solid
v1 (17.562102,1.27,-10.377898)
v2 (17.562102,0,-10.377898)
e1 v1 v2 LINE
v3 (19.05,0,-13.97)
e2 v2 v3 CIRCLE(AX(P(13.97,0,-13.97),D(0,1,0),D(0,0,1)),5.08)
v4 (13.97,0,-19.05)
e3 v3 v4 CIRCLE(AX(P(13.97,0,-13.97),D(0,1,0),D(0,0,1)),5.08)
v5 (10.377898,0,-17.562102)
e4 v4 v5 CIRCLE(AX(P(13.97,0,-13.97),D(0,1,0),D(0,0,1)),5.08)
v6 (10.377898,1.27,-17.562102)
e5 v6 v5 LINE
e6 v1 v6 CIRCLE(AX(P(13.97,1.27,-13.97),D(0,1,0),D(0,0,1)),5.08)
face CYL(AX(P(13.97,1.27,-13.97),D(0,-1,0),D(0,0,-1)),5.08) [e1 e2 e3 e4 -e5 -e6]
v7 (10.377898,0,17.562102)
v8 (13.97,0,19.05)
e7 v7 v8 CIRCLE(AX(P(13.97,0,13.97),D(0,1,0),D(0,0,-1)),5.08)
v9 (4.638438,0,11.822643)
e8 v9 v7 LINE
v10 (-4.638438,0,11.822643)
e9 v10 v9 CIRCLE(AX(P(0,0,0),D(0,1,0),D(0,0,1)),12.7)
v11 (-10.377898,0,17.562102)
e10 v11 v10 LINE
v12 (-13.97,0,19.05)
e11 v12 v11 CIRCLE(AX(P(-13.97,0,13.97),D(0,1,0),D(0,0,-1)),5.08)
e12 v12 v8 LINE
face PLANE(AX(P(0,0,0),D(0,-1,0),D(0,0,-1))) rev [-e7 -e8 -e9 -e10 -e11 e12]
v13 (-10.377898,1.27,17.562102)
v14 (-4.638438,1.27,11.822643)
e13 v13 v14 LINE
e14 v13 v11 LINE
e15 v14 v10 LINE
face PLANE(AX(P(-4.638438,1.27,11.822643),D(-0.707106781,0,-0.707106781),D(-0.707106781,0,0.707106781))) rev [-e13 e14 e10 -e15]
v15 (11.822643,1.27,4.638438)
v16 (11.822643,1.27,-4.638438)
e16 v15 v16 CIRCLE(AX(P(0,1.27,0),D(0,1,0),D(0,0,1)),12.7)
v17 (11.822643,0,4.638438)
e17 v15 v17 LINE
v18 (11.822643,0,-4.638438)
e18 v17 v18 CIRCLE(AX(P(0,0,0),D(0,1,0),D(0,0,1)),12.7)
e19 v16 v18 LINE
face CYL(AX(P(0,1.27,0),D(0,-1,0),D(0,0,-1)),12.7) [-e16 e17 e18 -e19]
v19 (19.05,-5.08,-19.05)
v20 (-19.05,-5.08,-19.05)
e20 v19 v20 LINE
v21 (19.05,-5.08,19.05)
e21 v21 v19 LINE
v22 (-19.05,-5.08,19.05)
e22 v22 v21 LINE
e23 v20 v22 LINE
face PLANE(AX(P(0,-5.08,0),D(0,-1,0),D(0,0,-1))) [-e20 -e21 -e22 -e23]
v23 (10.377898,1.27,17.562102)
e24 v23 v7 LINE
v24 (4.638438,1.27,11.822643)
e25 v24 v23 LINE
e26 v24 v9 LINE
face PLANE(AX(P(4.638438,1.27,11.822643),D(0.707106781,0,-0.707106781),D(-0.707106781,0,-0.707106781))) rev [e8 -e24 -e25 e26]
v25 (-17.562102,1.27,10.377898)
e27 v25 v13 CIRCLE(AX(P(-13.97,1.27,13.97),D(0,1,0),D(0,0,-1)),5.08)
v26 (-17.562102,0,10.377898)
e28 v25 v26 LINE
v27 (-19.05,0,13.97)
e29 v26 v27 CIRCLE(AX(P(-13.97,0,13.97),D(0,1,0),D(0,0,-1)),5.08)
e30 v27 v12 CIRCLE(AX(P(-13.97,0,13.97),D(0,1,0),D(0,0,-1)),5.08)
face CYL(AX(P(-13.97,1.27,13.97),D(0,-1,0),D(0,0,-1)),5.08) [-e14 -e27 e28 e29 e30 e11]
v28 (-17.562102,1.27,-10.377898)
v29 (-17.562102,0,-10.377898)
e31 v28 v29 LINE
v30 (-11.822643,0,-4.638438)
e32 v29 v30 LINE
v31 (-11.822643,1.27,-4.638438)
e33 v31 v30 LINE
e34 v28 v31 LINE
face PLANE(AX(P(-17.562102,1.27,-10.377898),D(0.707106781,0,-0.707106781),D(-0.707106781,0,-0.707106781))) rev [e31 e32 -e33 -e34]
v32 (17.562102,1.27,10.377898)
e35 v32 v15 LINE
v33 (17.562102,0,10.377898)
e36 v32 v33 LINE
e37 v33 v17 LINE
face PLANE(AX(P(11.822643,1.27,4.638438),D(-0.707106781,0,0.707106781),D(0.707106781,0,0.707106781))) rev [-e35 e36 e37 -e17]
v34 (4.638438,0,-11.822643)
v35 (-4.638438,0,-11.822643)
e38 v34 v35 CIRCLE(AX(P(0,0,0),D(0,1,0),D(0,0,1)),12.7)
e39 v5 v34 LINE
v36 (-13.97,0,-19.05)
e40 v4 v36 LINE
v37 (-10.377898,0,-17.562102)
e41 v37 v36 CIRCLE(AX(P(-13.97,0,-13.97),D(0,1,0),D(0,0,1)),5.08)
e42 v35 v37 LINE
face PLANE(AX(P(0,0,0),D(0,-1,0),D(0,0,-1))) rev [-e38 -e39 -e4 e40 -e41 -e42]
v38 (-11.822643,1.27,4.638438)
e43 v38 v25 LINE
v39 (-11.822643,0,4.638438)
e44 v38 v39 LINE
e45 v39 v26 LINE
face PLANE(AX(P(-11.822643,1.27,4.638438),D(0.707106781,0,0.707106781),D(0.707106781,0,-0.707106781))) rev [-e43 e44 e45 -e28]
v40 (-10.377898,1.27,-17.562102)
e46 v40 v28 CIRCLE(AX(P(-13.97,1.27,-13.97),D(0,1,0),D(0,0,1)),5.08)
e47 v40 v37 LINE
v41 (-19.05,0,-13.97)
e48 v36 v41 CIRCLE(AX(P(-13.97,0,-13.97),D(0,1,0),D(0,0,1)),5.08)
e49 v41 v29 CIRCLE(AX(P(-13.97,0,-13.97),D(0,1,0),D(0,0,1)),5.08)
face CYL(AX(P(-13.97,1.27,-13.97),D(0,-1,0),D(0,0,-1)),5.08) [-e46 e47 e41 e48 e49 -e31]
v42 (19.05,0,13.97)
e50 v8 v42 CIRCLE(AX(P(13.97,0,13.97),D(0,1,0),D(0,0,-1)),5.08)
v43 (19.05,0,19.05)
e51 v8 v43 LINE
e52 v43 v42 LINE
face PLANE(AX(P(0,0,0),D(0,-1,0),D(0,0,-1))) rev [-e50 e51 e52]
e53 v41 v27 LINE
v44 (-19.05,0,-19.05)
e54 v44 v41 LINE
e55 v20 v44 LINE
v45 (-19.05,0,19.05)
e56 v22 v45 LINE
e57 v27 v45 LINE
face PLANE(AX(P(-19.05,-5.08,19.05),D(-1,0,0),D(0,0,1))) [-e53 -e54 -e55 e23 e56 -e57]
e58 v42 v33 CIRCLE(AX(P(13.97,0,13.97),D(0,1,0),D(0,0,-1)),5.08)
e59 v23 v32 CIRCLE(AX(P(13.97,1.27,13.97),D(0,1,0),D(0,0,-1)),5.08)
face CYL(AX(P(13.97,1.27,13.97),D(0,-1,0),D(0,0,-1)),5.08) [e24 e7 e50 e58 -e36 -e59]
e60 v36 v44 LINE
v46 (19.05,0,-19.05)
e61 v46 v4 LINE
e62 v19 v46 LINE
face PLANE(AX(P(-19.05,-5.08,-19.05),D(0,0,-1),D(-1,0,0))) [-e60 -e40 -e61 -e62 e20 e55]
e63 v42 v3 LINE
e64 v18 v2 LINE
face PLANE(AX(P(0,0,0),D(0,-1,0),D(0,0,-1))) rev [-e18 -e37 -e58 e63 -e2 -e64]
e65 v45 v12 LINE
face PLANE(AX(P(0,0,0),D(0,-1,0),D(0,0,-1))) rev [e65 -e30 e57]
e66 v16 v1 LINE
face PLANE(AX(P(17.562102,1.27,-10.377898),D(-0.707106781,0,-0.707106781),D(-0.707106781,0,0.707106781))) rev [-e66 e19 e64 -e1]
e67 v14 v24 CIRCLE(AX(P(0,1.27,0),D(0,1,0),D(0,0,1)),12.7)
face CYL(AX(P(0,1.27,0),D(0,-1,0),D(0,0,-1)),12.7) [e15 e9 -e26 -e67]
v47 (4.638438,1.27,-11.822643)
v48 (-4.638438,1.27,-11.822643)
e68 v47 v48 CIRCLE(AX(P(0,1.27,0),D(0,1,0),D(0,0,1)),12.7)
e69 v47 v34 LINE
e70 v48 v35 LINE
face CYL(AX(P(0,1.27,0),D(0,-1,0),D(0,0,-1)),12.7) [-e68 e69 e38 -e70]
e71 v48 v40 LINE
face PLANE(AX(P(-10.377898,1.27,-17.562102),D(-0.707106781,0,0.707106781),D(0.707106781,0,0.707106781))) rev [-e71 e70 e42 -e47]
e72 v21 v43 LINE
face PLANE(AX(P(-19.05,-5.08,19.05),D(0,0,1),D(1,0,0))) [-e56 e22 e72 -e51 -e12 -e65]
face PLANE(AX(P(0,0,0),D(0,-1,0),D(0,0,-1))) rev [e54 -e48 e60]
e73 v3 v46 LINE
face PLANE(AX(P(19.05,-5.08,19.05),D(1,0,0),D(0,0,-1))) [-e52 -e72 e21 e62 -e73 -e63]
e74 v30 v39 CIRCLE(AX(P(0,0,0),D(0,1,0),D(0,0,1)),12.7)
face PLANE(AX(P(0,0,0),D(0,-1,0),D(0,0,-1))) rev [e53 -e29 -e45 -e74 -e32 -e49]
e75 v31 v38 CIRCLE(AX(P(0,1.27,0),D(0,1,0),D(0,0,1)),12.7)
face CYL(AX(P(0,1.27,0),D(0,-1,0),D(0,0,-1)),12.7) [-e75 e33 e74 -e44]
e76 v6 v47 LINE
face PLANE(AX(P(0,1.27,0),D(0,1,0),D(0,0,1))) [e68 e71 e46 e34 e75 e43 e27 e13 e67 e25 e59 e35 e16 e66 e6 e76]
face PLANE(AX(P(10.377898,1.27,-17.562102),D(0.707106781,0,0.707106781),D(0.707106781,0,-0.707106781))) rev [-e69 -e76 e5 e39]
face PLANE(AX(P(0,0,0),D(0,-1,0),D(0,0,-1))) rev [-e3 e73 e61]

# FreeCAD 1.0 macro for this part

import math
import FreeCAD as App
import Part
import Sketcher
from FreeCAD import Vector
Q = App.Units.Quantity

doc = App.newDocument("Part")
body = doc.addObject("PartDesign::Body", "Body")

sketch1 = doc.addObject("Sketcher::SketchObject", "Sketch")
body.addObject(sketch1)
sketch1.AttachmentSupport = (doc.XZ_Plane, [""])
sketch1.MapMode = "FlatFace"
sketch1.addGeometry([
    Part.LineSegment(Vector(-19.05, -19.05, 0), Vector(-19.05, 19.05, 0)),
    Part.LineSegment(Vector(-19.05, 19.05, 0), Vector(19.05, 19.05, 0)),
    Part.LineSegment(Vector(19.05, 19.05, 0), Vector(19.05, -19.05, 0)),
    Part.LineSegment(Vector(19.05, -19.05, 0), Vector(-19.05, -19.05, 0)),
], False)
sketch1.addConstraint([
    Sketcher.Constraint("Coincident", 0, 2, 1, 1),
    Sketcher.Constraint("Coincident", 1, 2, 2, 1),
    Sketcher.Constraint("Coincident", 2, 2, 3, 1),
    Sketcher.Constraint("Coincident", 3, 2, 0, 1),
    Sketcher.Constraint("Vertical", 0),
    Sketcher.Constraint("Horizontal", 1),
    Sketcher.Constraint("Vertical", 2),
    Sketcher.Constraint("Horizontal", 3),
    Sketcher.Constraint("Symmetric", 0, 2, 2, 2, -1, 1),
    Sketcher.Constraint("Equal", 3, 0),
    Sketcher.Constraint("DistanceX", 1, 1, 1, 2, Q("1.5 in")),
])
pad1 = doc.addObject("PartDesign::Pad", "Pad")
body.addObject(pad1)
pad1.Profile = sketch1
pad1.Length = Q("0.2 in")

sketch2 = doc.addObject("Sketcher::SketchObject", "Sketch001")
body.addObject(sketch2)
sketch2.AttachmentSupport = (doc.XZ_Plane, [""])
sketch2.MapMode = "FlatFace"
sketch2.addGeometry([
    Part.LineSegment(Vector(-17.562102, -10.377898, 0), Vector(-11.822643, -4.638438, 0)),
    Part.ArcOfCircle(Part.Circle(Vector(0, 0, 0), Vector(0, 0, 1), 12.7), math.radians(158.578178), math.radians(201.421822)),
    Part.LineSegment(Vector(-11.822643, 4.638438, 0), Vector(-17.562102, 10.377898, 0)),
    Part.ArcOfCircle(Part.Circle(Vector(-13.97, 13.97, 0), Vector(0, 0, 1), 5.08), math.radians(45), math.radians(225)),
    Part.LineSegment(Vector(-10.377898, 17.562102, 0), Vector(-4.638438, 11.822643, 0)),
    Part.ArcOfCircle(Part.Circle(Vector(0, 0, 0), Vector(0, 0, 1), 12.7), math.radians(68.578178), math.radians(111.421822)),
    Part.LineSegment(Vector(4.638438, 11.822643, 0), Vector(10.377898, 17.562102, 0)),
    Part.ArcOfCircle(Part.Circle(Vector(13.97, 13.97, 0), Vector(0, 0, 1), 5.08), math.radians(-45), math.radians(135)),
    Part.LineSegment(Vector(17.562102, 10.377898, 0), Vector(11.822643, 4.638438, 0)),
    Part.ArcOfCircle(Part.Circle(Vector(0, 0, 0), Vector(0, 0, 1), 12.7), math.radians(-21.421822), math.radians(21.421822)),
    Part.LineSegment(Vector(11.822643, -4.638438, 0), Vector(17.562102, -10.377898, 0)),
    Part.ArcOfCircle(Part.Circle(Vector(13.97, -13.97, 0), Vector(0, 0, 1), 5.08), math.radians(-135), math.radians(45)),
    Part.LineSegment(Vector(10.377898, -17.562102, 0), Vector(4.638438, -11.822643, 0)),
    Part.ArcOfCircle(Part.Circle(Vector(0, 0, 0), Vector(0, 0, 1), 12.7), math.radians(-111.421822), math.radians(-68.578178)),
    Part.LineSegment(Vector(-4.638438, -11.822643, 0), Vector(-10.377898, -17.562102, 0)),
    Part.ArcOfCircle(Part.Circle(Vector(-13.97, -13.97, 0), Vector(0, 0, 1), 5.08), math.radians(135), math.radians(315)),
], False)
sketch2.addConstraint([
    Sketcher.Constraint("Coincident", 0, 2, 1, 2),
    Sketcher.Constraint("Coincident", 1, 1, 2, 1),
    Sketcher.Constraint("Tangent", 2, 2, 3, 2),
    Sketcher.Constraint("Tangent", 3, 1, 4, 1),
    Sketcher.Constraint("Coincident", 4, 2, 5, 2),
    Sketcher.Constraint("Coincident", 5, 1, 6, 1),
    Sketcher.Constraint("Tangent", 6, 2, 7, 2),
    Sketcher.Constraint("Tangent", 7, 1, 8, 1),
    Sketcher.Constraint("Coincident", 8, 2, 9, 2),
    Sketcher.Constraint("Coincident", 9, 1, 10, 1),
    Sketcher.Constraint("Tangent", 10, 2, 11, 2),
    Sketcher.Constraint("Tangent", 11, 1, 12, 1),
    Sketcher.Constraint("Coincident", 12, 2, 13, 2),
    Sketcher.Constraint("Coincident", 13, 1, 14, 1),
    Sketcher.Constraint("Tangent", 14, 2, 15, 2),
    Sketcher.Constraint("Tangent", 15, 1, 0, 1),
    Sketcher.Constraint("Coincident", 1, 3, -1, 1),
    Sketcher.Constraint("Coincident", 5, 3, -1, 1),
    Sketcher.Constraint("Coincident", 9, 3, -1, 1),
    Sketcher.Constraint("Coincident", 13, 3, -1, 1),
    Sketcher.Constraint("Equal", 1, 5),
    Sketcher.Constraint("Equal", 3, 7),
    Sketcher.Constraint("Equal", 5, 9),
    Sketcher.Constraint("Equal", 7, 11),
    Sketcher.Constraint("Equal", 9, 13),
    Sketcher.Constraint("Equal", 11, 15),
    Sketcher.Constraint("Symmetric", 3, 3, 11, 3, -1, 1),
    Sketcher.Constraint("Symmetric", 7, 3, 15, 3, -1, 1),
    Sketcher.Constraint("Symmetric", 3, 3, 7, 3, -2),
    Sketcher.Constraint("Perpendicular", 0, 2),
    Sketcher.Constraint("Parallel", 2, 4),
    Sketcher.Constraint("Perpendicular", 4, 6),
    Sketcher.Constraint("Parallel", 6, 8),
    Sketcher.Constraint("Perpendicular", 8, 10),
    Sketcher.Constraint("Parallel", 10, 12),
    Sketcher.Constraint("Perpendicular", 12, 14),
    Sketcher.Constraint("Horizontal", 4, 2, 5, 1),
    Sketcher.Constraint("Equal", 2, 4),
    Sketcher.Constraint("Radius", 1, Q("0.5 in")),
    Sketcher.Constraint("Radius", 3, Q("0.2 in")),
    Sketcher.Constraint("DistanceX", 3, 3, 7, 3, Q("1.1 in")),
])
pad2 = doc.addObject("PartDesign::Pad", "Pad001")
body.addObject(pad2)
pad2.Profile = sketch2
pad2.Length = Q("0.05 in")
pad2.Reversed = True

doc.recompute()
